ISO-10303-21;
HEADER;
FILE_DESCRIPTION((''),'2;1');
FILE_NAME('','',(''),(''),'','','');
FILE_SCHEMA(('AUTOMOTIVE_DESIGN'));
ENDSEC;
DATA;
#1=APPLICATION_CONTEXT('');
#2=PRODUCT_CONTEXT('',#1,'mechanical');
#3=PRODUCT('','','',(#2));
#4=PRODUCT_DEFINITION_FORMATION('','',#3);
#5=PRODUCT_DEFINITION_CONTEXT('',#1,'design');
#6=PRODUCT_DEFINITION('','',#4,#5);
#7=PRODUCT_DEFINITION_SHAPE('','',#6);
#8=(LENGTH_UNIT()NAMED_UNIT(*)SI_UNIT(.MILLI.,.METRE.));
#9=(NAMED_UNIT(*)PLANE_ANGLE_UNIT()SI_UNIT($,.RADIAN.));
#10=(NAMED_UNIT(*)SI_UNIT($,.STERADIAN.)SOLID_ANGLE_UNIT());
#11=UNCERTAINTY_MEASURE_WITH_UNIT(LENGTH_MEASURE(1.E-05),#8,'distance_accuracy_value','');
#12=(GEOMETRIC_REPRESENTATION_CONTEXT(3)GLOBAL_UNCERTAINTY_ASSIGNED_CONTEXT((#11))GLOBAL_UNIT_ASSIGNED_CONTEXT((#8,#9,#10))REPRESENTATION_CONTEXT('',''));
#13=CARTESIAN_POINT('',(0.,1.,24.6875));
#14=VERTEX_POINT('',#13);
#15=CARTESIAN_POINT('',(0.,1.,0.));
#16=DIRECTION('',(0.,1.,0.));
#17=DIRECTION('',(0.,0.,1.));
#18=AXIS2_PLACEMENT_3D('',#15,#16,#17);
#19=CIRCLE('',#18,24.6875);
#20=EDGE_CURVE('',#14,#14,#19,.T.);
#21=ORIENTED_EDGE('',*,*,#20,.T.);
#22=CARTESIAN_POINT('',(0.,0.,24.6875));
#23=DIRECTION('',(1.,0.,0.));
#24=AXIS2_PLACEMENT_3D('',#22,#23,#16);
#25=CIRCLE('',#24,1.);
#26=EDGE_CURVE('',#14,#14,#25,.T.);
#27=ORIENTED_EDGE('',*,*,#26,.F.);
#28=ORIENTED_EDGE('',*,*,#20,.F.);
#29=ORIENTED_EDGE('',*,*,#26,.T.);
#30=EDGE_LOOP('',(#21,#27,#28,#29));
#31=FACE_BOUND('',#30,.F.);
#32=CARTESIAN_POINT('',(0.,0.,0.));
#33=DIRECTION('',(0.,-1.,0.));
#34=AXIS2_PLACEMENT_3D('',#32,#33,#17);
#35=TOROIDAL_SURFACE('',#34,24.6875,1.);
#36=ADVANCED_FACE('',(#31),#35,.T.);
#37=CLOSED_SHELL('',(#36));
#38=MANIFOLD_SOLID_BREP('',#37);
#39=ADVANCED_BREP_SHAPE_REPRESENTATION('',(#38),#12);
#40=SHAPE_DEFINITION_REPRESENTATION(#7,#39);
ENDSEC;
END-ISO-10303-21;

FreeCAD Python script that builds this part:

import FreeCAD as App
import Part
import Sketcher
Q = App.Units.Quantity

doc = App.newDocument("Part")
body = doc.addObject("PartDesign::Body", "Body")

# Sketch on YZ plane
sketch1 = doc.addObject("Sketcher::SketchObject", "Sketch")
body.addObject(sketch1)
sketch1.AttachmentSupport = (doc.YZ_Plane, [""])
sketch1.MapMode = "FlatFace"
sketch1.addGeometry(Part.Circle(App.Vector(0, 24.6875, 0), App.Vector(0, 0, 1), 1), False)
sketch1.addConstraint([
    Sketcher.Constraint("PointOnObject", 0, 3, -2),
    Sketcher.Constraint("Diameter", 0, Q("2 mm")),
    Sketcher.Constraint("DistanceY", -1, 1, 0, 3, Q("24.6875 mm")),
])
revolution = doc.addObject("PartDesign::Revolution", "Revolution")
body.addObject(revolution)
revolution.Profile = sketch1
revolution.ReferenceAxis = (sketch1, ["H_Axis"])
revolution.Angle = 360

doc.recompute()
